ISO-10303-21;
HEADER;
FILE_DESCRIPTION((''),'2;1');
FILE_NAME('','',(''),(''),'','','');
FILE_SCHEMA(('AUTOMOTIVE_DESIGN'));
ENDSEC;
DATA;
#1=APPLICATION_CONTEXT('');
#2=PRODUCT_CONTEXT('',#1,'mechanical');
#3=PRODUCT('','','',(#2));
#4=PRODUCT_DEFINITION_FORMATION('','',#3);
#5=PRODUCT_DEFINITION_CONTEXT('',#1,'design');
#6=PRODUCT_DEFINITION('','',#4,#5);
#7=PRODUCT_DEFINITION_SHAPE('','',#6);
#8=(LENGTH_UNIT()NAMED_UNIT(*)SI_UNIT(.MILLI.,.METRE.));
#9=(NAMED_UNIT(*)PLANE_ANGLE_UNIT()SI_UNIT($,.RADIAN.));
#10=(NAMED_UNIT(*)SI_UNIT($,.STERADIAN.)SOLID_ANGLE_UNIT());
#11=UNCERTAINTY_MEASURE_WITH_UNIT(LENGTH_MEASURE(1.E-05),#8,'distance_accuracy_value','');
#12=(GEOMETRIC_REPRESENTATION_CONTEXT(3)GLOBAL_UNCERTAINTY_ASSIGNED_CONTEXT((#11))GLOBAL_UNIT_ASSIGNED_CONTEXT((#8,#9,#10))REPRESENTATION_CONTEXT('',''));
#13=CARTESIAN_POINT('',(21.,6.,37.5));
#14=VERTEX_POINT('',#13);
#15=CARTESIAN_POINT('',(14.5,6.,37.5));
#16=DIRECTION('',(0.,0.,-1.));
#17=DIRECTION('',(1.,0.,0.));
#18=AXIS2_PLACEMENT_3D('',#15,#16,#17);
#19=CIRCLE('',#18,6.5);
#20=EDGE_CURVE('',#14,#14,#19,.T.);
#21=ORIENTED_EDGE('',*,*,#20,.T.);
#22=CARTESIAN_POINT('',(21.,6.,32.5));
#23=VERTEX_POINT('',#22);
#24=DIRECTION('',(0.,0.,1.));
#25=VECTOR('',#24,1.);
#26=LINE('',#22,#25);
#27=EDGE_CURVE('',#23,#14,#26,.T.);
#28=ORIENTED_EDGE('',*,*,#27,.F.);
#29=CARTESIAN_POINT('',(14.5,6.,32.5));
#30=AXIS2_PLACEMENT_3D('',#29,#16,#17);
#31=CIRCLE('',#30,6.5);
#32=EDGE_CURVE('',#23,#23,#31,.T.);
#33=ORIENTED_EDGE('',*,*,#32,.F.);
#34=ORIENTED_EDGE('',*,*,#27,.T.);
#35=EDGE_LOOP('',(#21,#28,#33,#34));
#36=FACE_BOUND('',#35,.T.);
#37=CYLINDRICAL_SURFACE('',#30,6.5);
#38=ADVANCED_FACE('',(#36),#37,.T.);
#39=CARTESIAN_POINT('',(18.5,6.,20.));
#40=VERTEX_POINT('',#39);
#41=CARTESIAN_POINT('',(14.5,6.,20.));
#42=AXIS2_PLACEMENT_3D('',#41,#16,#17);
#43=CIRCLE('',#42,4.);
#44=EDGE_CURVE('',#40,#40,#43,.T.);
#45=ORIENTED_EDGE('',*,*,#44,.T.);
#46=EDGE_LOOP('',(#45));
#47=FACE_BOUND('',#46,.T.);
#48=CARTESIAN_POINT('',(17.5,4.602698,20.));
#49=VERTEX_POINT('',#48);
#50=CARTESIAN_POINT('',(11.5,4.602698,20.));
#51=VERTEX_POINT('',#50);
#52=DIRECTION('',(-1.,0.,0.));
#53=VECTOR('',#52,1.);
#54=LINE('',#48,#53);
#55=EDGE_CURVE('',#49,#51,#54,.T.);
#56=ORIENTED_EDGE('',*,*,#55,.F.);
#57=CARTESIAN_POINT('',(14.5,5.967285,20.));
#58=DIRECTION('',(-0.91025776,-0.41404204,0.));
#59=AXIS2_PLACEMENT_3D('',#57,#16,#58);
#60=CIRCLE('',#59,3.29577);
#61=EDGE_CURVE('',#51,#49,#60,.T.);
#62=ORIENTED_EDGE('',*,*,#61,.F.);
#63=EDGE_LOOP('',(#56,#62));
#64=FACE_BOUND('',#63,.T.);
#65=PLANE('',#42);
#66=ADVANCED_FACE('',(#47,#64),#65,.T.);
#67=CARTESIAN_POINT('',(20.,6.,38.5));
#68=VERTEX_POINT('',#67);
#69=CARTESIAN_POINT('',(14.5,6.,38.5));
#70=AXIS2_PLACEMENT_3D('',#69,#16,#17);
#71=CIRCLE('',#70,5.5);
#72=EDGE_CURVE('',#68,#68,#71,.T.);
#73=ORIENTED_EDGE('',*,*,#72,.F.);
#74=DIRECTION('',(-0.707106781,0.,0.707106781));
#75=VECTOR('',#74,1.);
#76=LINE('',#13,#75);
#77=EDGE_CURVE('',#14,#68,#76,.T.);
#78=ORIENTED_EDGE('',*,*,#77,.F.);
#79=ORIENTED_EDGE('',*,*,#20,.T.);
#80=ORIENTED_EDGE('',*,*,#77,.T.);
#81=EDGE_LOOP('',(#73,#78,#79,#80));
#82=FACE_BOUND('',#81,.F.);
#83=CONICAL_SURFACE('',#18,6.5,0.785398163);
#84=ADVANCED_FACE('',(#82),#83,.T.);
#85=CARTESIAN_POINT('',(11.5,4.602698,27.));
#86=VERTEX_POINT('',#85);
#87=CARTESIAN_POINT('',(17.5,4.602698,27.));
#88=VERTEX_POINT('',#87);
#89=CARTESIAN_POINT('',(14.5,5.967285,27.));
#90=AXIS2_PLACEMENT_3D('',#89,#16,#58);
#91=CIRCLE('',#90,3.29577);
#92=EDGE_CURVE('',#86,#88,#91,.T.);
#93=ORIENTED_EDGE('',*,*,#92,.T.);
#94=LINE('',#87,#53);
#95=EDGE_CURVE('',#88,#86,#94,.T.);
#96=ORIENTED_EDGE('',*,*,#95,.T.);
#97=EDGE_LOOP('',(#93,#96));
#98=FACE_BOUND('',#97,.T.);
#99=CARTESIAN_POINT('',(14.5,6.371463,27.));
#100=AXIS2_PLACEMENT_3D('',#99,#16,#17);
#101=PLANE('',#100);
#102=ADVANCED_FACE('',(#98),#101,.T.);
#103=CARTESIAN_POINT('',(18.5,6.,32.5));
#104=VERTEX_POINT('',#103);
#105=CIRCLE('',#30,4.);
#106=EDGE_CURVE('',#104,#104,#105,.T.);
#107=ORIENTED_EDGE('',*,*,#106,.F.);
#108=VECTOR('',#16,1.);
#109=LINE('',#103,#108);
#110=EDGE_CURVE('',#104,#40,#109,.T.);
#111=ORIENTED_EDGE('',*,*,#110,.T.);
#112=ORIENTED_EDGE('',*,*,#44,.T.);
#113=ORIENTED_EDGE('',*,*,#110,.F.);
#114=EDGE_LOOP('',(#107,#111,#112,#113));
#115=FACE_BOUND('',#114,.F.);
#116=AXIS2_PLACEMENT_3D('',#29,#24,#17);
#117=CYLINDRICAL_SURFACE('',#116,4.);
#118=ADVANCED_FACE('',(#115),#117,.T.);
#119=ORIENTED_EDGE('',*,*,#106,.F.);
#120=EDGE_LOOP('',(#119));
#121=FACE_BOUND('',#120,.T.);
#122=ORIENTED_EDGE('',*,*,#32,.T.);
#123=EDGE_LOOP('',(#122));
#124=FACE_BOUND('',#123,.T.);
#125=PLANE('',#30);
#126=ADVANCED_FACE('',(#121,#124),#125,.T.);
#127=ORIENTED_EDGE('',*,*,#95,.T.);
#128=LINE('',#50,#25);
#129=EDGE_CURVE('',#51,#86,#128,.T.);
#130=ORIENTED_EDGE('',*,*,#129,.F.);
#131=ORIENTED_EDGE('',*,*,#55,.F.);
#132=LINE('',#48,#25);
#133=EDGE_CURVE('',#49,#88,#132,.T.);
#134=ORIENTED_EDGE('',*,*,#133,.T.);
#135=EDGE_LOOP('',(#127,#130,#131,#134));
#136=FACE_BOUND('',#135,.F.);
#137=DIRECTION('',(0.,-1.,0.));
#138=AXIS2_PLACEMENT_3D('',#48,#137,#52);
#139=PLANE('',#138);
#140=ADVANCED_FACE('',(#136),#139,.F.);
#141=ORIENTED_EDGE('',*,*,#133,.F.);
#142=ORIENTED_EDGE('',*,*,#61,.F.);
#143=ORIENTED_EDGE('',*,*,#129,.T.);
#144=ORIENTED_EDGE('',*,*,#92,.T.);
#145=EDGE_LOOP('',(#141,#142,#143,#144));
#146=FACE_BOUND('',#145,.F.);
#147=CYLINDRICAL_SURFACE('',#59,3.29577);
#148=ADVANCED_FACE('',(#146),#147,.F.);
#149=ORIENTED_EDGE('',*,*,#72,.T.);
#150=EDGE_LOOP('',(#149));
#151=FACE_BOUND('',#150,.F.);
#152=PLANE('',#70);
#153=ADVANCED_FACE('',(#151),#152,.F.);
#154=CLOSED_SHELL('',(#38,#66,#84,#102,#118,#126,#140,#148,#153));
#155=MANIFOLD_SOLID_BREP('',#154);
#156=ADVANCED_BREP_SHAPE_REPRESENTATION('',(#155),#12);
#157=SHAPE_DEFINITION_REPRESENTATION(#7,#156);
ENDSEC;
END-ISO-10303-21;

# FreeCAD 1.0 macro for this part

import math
import FreeCAD as App
import Part
import Sketcher
from FreeCAD import Vector


def edges_at(feature, points):
    """Names of the edges that pass closest to the given points."""
    edges = feature.Shape.Edges
    near = lambda p: min(range(len(edges)), key=lambda i: edges[i].distToShape(Part.Vertex(*p))[0])
    return sorted({f"Edge{near(p) + 1}" for p in points})

doc = App.newDocument("Part")
body = doc.addObject("PartDesign::Body", "Body")

# Sketch on XY plane
sketch1 = body.newObject("Sketcher::SketchObject", "Sketch")
sketch1.AttachmentSupport = (doc.getObject("XY_Plane"), [""])
sketch1.MapMode = "FlatFace"
sketch1.AttachmentOffset = App.Placement(Vector(0, 0, 30), App.Rotation())
sketch1.addGeometry(Part.Circle(Vector(14, 4, 0), Vector(0, 0, 1), 6), False)
sketch1.addConstraint(Sketcher.Constraint("Diameter", 0, 13.0))
sketch1.addConstraint(Sketcher.Constraint("DistanceY", -1, 1, 0, 3, 4.0))
sketch1.addConstraint(Sketcher.Constraint("DistanceX", -1, 1, 0, 3, 14.5))
pad1 = body.newObject("PartDesign::Pad", "Pad")
pad1.Profile = sketch1
pad1.Length = 6
doc.recompute()

chamfer = body.newObject("PartDesign::Chamfer", "Chamfer")
chamfer.Base = (pad1, edges_at(pad1, [(8, 4, 36)]))
chamfer.Size = 1

# Sketch on XY plane
sketch2 = body.newObject("Sketcher::SketchObject", "Sketch001")
sketch2.AttachmentSupport = (doc.getObject("XY_Plane"), [""])
sketch2.MapMode = "FlatFace"
sketch2.AttachmentOffset = App.Placement(Vector(0, 0, 30), App.Rotation())
sketch2.addGeometry(Part.Circle(Vector(14.5, 4, 0), Vector(0, 0, 1), 4), False)
sketch2.addConstraint(Sketcher.Constraint("Diameter", 0, 8.0))
sketch2.addConstraint(Sketcher.Constraint("DistanceY", -1, 1, 0, 3, 4.0))
sketch2.addConstraint(Sketcher.Constraint("DistanceX", -1, 1, 0, 3, 14.5))
pad2 = body.newObject("PartDesign::Pad", "Pad001")
pad2.Profile = sketch2
pad2.Length = 12.5
pad2.Reversed = True

# Sketch on XY plane
sketch3 = body.newObject("Sketcher::SketchObject", "Sketch002")
sketch3.AttachmentSupport = (doc.getObject("XY_Plane"), [""])
sketch3.MapMode = "FlatFace"
sketch3.AttachmentOffset = App.Placement(Vector(0, 0, 17.5), App.Rotation())
sketch3.addGeometry(Part.ArcOfCircle(Part.Circle(Vector(14.5, 4, 0), Vector(0, 0, 1), 3.3), math.radians(-24), math.radians(204)), False)
sketch3.addGeometry(Part.LineSegment(Vector(17.5, 2.6, 0), Vector(11.5, 2.6, 0)), False)
sketch3.addConstraint(Sketcher.Constraint("Coincident", 0, 1, 1, 1))
sketch3.addConstraint(Sketcher.Constraint("Coincident", 1, 2, 0, 2))
sketch3.addConstraint(Sketcher.Constraint("Horizontal", 1))
sketch3.addConstraint(Sketcher.Constraint("DistanceX", 1, 2, 1, 1, 6.0))
sketch3.addConstraint(Sketcher.Constraint("DistanceX", -1, 1, 0, 3, 14.5))
sketch3.addConstraint(Sketcher.Constraint("Radius", 0, 3.29577))
sketch3.addConstraint(Sketcher.Constraint("DistanceY", -1, 1, 1, 2, 2.602698))
pocket1 = body.newObject("PartDesign::Pocket", "Pocket")
pocket1.Profile = sketch3
pocket1.Length = 7
pocket1.Reversed = True
body2 = doc.addObject("PartDesign::Body", "Body001")
doc.recompute()

body.Placement = App.Placement(Vector(0, 2, 2.5), App.Rotation(Vector(0, 0, 1), 0))
boolean = body2.newObject("PartDesign::Boolean", "Boolean")
boolean.Type = "Fuse"
boolean.addObjects([body])

doc.recompute()
